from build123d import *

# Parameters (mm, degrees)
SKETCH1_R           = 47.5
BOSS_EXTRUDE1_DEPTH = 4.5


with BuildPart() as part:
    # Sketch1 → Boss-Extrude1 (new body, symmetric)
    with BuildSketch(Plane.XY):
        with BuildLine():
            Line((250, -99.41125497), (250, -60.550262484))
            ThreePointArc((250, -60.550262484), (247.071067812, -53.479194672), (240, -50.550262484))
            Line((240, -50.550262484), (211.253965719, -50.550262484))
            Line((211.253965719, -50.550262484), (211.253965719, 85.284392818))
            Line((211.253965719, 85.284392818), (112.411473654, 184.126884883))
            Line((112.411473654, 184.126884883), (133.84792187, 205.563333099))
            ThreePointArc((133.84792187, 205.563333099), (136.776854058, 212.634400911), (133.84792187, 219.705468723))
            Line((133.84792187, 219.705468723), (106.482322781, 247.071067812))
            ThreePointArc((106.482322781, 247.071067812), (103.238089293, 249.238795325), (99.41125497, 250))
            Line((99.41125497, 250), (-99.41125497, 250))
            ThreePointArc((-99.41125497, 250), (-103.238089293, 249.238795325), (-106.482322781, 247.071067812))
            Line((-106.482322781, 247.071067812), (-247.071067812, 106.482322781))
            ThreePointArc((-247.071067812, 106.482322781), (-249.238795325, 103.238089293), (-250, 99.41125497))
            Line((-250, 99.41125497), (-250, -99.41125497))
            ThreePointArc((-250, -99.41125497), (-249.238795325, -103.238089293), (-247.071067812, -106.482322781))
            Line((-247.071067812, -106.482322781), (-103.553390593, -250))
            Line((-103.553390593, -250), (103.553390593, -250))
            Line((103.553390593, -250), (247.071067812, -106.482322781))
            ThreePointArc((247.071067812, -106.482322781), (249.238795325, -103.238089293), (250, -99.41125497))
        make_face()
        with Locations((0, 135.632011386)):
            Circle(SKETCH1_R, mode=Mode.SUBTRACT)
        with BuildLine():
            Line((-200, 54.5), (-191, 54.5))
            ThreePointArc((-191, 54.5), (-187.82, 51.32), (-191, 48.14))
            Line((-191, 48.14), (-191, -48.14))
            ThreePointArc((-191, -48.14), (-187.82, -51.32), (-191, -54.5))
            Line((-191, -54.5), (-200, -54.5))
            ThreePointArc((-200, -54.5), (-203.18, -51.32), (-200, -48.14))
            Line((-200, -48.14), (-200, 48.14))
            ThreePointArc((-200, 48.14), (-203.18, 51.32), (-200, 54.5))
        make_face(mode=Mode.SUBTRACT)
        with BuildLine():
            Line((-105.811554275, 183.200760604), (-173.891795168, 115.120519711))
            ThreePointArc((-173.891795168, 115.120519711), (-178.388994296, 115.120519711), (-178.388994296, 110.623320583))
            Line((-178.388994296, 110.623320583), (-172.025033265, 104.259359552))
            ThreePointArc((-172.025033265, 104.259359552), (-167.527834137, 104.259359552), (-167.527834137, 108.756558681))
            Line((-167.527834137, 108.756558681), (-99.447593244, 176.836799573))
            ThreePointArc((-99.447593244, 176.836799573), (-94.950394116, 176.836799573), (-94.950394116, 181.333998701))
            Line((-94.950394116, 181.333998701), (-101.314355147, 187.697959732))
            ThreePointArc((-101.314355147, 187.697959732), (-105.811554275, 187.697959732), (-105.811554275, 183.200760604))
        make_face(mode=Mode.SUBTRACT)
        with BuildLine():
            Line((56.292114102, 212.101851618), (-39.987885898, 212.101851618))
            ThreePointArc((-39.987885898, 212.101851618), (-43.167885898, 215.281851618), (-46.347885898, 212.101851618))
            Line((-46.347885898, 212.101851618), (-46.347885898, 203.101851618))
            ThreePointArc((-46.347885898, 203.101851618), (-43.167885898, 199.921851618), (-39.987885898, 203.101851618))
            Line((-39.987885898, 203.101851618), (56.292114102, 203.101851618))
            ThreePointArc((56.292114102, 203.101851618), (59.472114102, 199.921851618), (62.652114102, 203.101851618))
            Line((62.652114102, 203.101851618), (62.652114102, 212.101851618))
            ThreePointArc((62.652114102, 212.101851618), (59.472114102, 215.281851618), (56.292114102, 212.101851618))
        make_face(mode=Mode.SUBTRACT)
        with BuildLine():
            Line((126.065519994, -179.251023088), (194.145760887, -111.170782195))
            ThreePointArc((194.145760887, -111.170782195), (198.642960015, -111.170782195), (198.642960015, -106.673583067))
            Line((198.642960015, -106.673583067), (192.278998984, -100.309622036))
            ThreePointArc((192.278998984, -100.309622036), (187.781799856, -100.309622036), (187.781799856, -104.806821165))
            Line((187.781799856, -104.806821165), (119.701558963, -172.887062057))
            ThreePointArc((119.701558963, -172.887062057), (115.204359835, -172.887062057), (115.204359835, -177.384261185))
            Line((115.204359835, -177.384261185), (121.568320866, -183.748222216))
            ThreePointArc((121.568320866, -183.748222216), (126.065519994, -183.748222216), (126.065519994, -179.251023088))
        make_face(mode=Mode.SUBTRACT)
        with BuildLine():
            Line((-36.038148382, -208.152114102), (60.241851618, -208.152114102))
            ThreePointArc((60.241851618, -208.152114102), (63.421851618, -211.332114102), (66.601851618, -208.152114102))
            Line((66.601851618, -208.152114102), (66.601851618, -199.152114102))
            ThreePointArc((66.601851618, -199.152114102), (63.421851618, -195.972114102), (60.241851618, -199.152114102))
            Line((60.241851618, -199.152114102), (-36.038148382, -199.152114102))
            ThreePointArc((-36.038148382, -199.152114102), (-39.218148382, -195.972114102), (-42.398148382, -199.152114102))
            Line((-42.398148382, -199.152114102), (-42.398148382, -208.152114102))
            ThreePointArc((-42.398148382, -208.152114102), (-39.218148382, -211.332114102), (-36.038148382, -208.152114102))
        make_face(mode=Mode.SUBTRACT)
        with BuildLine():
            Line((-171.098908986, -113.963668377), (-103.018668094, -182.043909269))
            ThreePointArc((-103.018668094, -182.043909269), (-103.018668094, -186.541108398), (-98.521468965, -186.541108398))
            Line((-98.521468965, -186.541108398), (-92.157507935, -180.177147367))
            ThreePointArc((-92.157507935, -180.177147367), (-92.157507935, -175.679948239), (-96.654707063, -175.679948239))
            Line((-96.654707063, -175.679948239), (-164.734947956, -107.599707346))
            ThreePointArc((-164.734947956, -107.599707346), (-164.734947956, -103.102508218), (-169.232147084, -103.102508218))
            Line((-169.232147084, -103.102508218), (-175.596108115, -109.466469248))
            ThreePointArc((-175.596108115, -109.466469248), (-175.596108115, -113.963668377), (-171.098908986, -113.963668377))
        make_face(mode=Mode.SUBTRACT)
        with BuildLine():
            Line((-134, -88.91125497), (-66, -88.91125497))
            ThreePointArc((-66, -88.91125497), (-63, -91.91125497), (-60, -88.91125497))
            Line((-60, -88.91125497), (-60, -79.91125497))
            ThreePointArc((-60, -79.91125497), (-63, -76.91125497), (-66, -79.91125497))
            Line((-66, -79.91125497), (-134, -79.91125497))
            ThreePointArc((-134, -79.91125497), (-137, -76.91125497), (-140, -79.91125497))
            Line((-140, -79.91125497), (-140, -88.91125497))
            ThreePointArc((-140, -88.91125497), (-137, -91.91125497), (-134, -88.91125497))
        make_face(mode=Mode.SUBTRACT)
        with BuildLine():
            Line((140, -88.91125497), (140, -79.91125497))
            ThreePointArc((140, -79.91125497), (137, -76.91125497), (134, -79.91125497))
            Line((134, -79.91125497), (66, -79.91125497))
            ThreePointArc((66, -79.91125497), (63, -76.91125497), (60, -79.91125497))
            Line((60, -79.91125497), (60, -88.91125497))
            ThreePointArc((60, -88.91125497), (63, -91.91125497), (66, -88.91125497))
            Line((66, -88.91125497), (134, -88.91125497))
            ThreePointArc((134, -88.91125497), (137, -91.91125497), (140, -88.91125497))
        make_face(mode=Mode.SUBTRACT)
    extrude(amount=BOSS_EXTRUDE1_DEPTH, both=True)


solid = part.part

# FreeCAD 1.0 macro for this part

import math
import FreeCAD as App
import Part
import Sketcher

V = App.Vector
Q = App.Units.Quantity

doc = App.newDocument("Part")
params = doc.addObject("Spreadsheet::Sheet", "Params")
for row, (alias, value) in enumerate([
    ("sketch1_diameter", "95 mm"),
    ("sketch1_radius", "10 mm"),
    ("sketch1_radius2", "3 mm"),
    ("sketch1_width", "9 mm"),
    ("sketch1_width2", "68 mm"),
    ("pad1_length", "9 mm"),
], start=1):
    params.set(f"A{row}", alias)
    params.set(f"B{row}", "=" + value)
    params.setAlias(f"B{row}", alias)

body = doc.addObject("PartDesign::Body", "Body")

# Sketch on XY plane
sketch1 = body.newObject("Sketcher::SketchObject", "Sketch")
sketch1.AttachmentSupport = (doc.getObject("XY_Plane"), [""])
sketch1.MapMode = "FlatFace"
sketch1.addGeometry(Part.LineSegment(V(250, -99.411255, 0), V(250, -60.550262, 0)), False)
sketch1.addGeometry(Part.ArcOfCircle(Part.Circle(V(240, -60.550262, 0), V(0, 0, 1), 10), math.radians(0), math.radians(90)), False)
sketch1.addGeometry(Part.LineSegment(V(240, -50.550262, 0), V(211.253966, -50.550262, 0)), False)
sketch1.addGeometry(Part.LineSegment(V(211.253966, -50.550262, 0), V(211.253966, 85.284393, 0)), False)
sketch1.addGeometry(Part.LineSegment(V(211.253966, 85.284393, 0), V(112.411474, 184.126885, 0)), False)
sketch1.addGeometry(Part.LineSegment(V(112.411474, 184.126885, 0), V(133.847922, 205.563333, 0)), False)
sketch1.addGeometry(Part.ArcOfCircle(Part.Circle(V(126.776854, 212.634401, 0), V(0, 0, 1), 10), math.radians(-45), math.radians(45)), False)
sketch1.addGeometry(Part.LineSegment(V(133.847922, 219.705469, 0), V(106.482323, 247.071068, 0)), False)
sketch1.addGeometry(Part.ArcOfCircle(Part.Circle(V(99.411255, 240, 0), V(0, 0, 1), 10), math.radians(45), math.radians(90)), False)
sketch1.addGeometry(Part.LineSegment(V(99.411255, 250, 0), V(-99.411255, 250, 0)), False)
sketch1.addGeometry(Part.ArcOfCircle(Part.Circle(V(-99.411255, 240, 0), V(0, 0, 1), 10), math.radians(90), math.radians(135)), False)
sketch1.addGeometry(Part.LineSegment(V(-106.482323, 247.071068, 0), V(-247.071068, 106.482323, 0)), False)
sketch1.addGeometry(Part.ArcOfCircle(Part.Circle(V(-240, 99.411255, 0), V(0, 0, 1), 10), math.radians(135), math.radians(180)), False)
sketch1.addGeometry(Part.LineSegment(V(-250, 99.411255, 0), V(-250, -99.411255, 0)), False)
sketch1.addGeometry(Part.ArcOfCircle(Part.Circle(V(-240, -99.411255, 0), V(0, 0, 1), 10), math.radians(-180), math.radians(-135)), False)
sketch1.addGeometry(Part.LineSegment(V(-247.071068, -106.482323, 0), V(-103.553391, -250, 0)), False)
sketch1.addGeometry(Part.LineSegment(V(-103.553391, -250, 0), V(103.553391, -250, 0)), False)
sketch1.addGeometry(Part.LineSegment(V(103.553391, -250, 0), V(247.071068, -106.482323, 0)), False)
sketch1.addGeometry(Part.ArcOfCircle(Part.Circle(V(240, -99.411255, 0), V(0, 0, 1), 10), math.radians(-45), math.radians(0)), False)
sketch1.addGeometry(Part.LineSegment(V(-103.018668, -182.043909, 0), V(-171.098909, -113.963668, 0)), False)
sketch1.addGeometry(Part.ArcOfCircle(Part.Circle(V(-173.347509, -111.715069, 0), V(0, 0, 1), 3.18), math.radians(135), math.radians(315)), False)
sketch1.addGeometry(Part.LineSegment(V(-175.596108, -109.466469, 0), V(-169.232147, -103.102508, 0)), False)
sketch1.addGeometry(Part.ArcOfCircle(Part.Circle(V(-166.983548, -105.351108, 0), V(0, 0, 1), 3.18), math.radians(-45), math.radians(135)), False)
sketch1.addGeometry(Part.LineSegment(V(-164.734948, -107.599707, 0), V(-96.654707, -175.679948, 0)), False)
sketch1.addGeometry(Part.ArcOfCircle(Part.Circle(V(-94.406107, -177.928548, 0), V(0, 0, 1), 3.18), math.radians(-45), math.radians(135)), False)
sketch1.addGeometry(Part.LineSegment(V(-92.157508, -180.177147, 0), V(-98.521469, -186.541108, 0)), False)
sketch1.addGeometry(Part.ArcOfCircle(Part.Circle(V(-100.770069, -184.292509, 0), V(0, 0, 1), 3.18), math.radians(135), math.radians(315)), False)
sketch1.addGeometry(Part.ArcOfCircle(Part.Circle(V(-200, 51.32, 0), V(0, 0, 1), 3.18), math.radians(90), math.radians(270)), False)
sketch1.addGeometry(Part.LineSegment(V(-200, 54.5, 0), V(-191, 54.5, 0)), False)
sketch1.addGeometry(Part.ArcOfCircle(Part.Circle(V(-191, 51.32, 0), V(0, 0, 1), 3.18), math.radians(-90), math.radians(90)), False)
sketch1.addGeometry(Part.LineSegment(V(-191, 48.14, 0), V(-191, -48.14, 0)), False)
sketch1.addGeometry(Part.ArcOfCircle(Part.Circle(V(-191, -51.32, 0), V(0, 0, 1), 3.18), math.radians(-90), math.radians(90)), False)
sketch1.addGeometry(Part.LineSegment(V(-191, -54.5, 0), V(-200, -54.5, 0)), False)
sketch1.addGeometry(Part.ArcOfCircle(Part.Circle(V(-200, -51.32, 0), V(0, 0, 1), 3.18), math.radians(90), math.radians(270)), False)
sketch1.addGeometry(Part.LineSegment(V(-200, -48.14, 0), V(-200, 48.14, 0)), False)
sketch1.addGeometry(Part.LineSegment(V(-66, -88.911255, 0), V(-134, -88.911255, 0)), False)
sketch1.addGeometry(Part.ArcOfCircle(Part.Circle(V(-137, -88.911255, 0), V(0, 0, 1), 3), math.radians(180), math.radians(360)), False)
sketch1.addGeometry(Part.LineSegment(V(-140, -88.911255, 0), V(-140, -79.911255, 0)), False)
sketch1.addGeometry(Part.ArcOfCircle(Part.Circle(V(-137, -79.911255, 0), V(0, 0, 1), 3), math.radians(0), math.radians(180)), False)
sketch1.addGeometry(Part.LineSegment(V(-134, -79.911255, 0), V(-66, -79.911255, 0)), False)
sketch1.addGeometry(Part.ArcOfCircle(Part.Circle(V(-63, -79.911255, 0), V(0, 0, 1), 3), math.radians(0), math.radians(180)), False)
sketch1.addGeometry(Part.LineSegment(V(-60, -79.911255, 0), V(-60, -88.911255, 0)), False)
sketch1.addGeometry(Part.ArcOfCircle(Part.Circle(V(-63, -88.911255, 0), V(0, 0, 1), 3), math.radians(180), math.radians(360)), False)
sketch1.addGeometry(Part.LineSegment(V(60.241852, -208.152114, 0), V(-36.038148, -208.152114, 0)), False)
sketch1.addGeometry(Part.ArcOfCircle(Part.Circle(V(-39.218148, -208.152114, 0), V(0, 0, 1), 3.18), math.radians(180), math.radians(360)), False)
sketch1.addGeometry(Part.LineSegment(V(-42.398148, -208.152114, 0), V(-42.398148, -199.152114, 0)), False)
sketch1.addGeometry(Part.ArcOfCircle(Part.Circle(V(-39.218148, -199.152114, 0), V(0, 0, 1), 3.18), math.radians(0), math.radians(180)), False)
sketch1.addGeometry(Part.LineSegment(V(-36.038148, -199.152114, 0), V(60.241852, -199.152114, 0)), False)
sketch1.addGeometry(Part.ArcOfCircle(Part.Circle(V(63.421852, -199.152114, 0), V(0, 0, 1), 3.18), math.radians(0), math.radians(180)), False)
sketch1.addGeometry(Part.LineSegment(V(66.601852, -199.152114, 0), V(66.601852, -208.152114, 0)), False)
sketch1.addGeometry(Part.ArcOfCircle(Part.Circle(V(63.421852, -208.152114, 0), V(0, 0, 1), 3.18), math.radians(180), math.radians(360)), False)
sketch1.addGeometry(Part.LineSegment(V(194.145761, -111.170782, 0), V(126.06552, -179.251023, 0)), False)
sketch1.addGeometry(Part.ArcOfCircle(Part.Circle(V(123.81692, -181.499623, 0), V(0, 0, 1), 3.18), math.radians(-135), math.radians(45)), False)
sketch1.addGeometry(Part.LineSegment(V(121.568321, -183.748222, 0), V(115.20436, -177.384261, 0)), False)
sketch1.addGeometry(Part.ArcOfCircle(Part.Circle(V(117.452959, -175.135662, 0), V(0, 0, 1), 3.18), math.radians(45), math.radians(225)), False)
sketch1.addGeometry(Part.LineSegment(V(119.701559, -172.887062, 0), V(187.7818, -104.806821, 0)), False)
sketch1.addGeometry(Part.ArcOfCircle(Part.Circle(V(190.030399, -102.558222, 0), V(0, 0, 1), 3.18), math.radians(45), math.radians(225)), False)
sketch1.addGeometry(Part.LineSegment(V(192.278999, -100.309622, 0), V(198.64296, -106.673583, 0)), False)
sketch1.addGeometry(Part.ArcOfCircle(Part.Circle(V(196.39436, -108.922183, 0), V(0, 0, 1), 3.18), math.radians(-135), math.radians(45)), False)
sketch1.addGeometry(Part.LineSegment(V(140, -79.911255, 0), V(140, -88.911255, 0)), False)
sketch1.addGeometry(Part.ArcOfCircle(Part.Circle(V(137, -88.911255, 0), V(0, 0, 1), 3), math.radians(180), math.radians(360)), False)
sketch1.addGeometry(Part.LineSegment(V(134, -88.911255, 0), V(66, -88.911255, 0)), False)
sketch1.addGeometry(Part.ArcOfCircle(Part.Circle(V(63, -88.911255, 0), V(0, 0, 1), 3), math.radians(180), math.radians(360)), False)
sketch1.addGeometry(Part.LineSegment(V(60, -88.911255, 0), V(60, -79.911255, 0)), False)
sketch1.addGeometry(Part.ArcOfCircle(Part.Circle(V(63, -79.911255, 0), V(0, 0, 1), 3), math.radians(0), math.radians(180)), False)
sketch1.addGeometry(Part.LineSegment(V(66, -79.911255, 0), V(134, -79.911255, 0)), False)
sketch1.addGeometry(Part.ArcOfCircle(Part.Circle(V(137, -79.911255, 0), V(0, 0, 1), 3), math.radians(0), math.radians(180)), False)
sketch1.addGeometry(Part.LineSegment(V(-173.891795, 115.12052, 0), V(-105.811554, 183.200761, 0)), False)
sketch1.addGeometry(Part.ArcOfCircle(Part.Circle(V(-103.562955, 185.44936, 0), V(0, 0, 1), 3.18), math.radians(45), math.radians(225)), False)
sketch1.addGeometry(Part.LineSegment(V(-101.314355, 187.69796, 0), V(-94.950394, 181.333999, 0)), False)
sketch1.addGeometry(Part.ArcOfCircle(Part.Circle(V(-97.198994, 179.085399, 0), V(0, 0, 1), 3.18), math.radians(-135), math.radians(45)), False)
sketch1.addGeometry(Part.LineSegment(V(-99.447593, 176.8368, 0), V(-167.527834, 108.756559, 0)), False)
sketch1.addGeometry(Part.ArcOfCircle(Part.Circle(V(-169.776434, 106.507959, 0), V(0, 0, 1), 3.18), math.radians(-135), math.radians(45)), False)
sketch1.addGeometry(Part.LineSegment(V(-172.025033, 104.25936, 0), V(-178.388994, 110.623321, 0)), False)
sketch1.addGeometry(Part.ArcOfCircle(Part.Circle(V(-176.140395, 112.87192, 0), V(0, 0, 1), 3.18), math.radians(45), math.radians(225)), False)
sketch1.addGeometry(Part.Circle(V(0, 135.632011, 0), V(0, 0, 1), 47.5), False)
sketch1.addGeometry(Part.LineSegment(V(-39.987886, 212.101852, 0), V(56.292114, 212.101852, 0)), False)
sketch1.addGeometry(Part.ArcOfCircle(Part.Circle(V(59.472114, 212.101852, 0), V(0, 0, 1), 3.18), math.radians(0), math.radians(180)), False)
sketch1.addGeometry(Part.LineSegment(V(62.652114, 212.101852, 0), V(62.652114, 203.101852, 0)), False)
sketch1.addGeometry(Part.ArcOfCircle(Part.Circle(V(59.472114, 203.101852, 0), V(0, 0, 1), 3.18), math.radians(180), math.radians(360)), False)
sketch1.addGeometry(Part.LineSegment(V(56.292114, 203.101852, 0), V(-39.987886, 203.101852, 0)), False)
sketch1.addGeometry(Part.ArcOfCircle(Part.Circle(V(-43.167886, 203.101852, 0), V(0, 0, 1), 3.18), math.radians(180), math.radians(360)), False)
sketch1.addGeometry(Part.LineSegment(V(-46.347886, 203.101852, 0), V(-46.347886, 212.101852, 0)), False)
sketch1.addGeometry(Part.ArcOfCircle(Part.Circle(V(-43.167886, 212.101852, 0), V(0, 0, 1), 3.18), math.radians(0), math.radians(180)), False)
sketch1.addConstraint(Sketcher.Constraint("Tangent", 0, 2, 1, 1))
sketch1.addConstraint(Sketcher.Constraint("Tangent", 1, 2, 2, 1))
sketch1.addConstraint(Sketcher.Constraint("Coincident", 2, 2, 3, 1))
sketch1.addConstraint(Sketcher.Constraint("Coincident", 3, 2, 4, 1))
sketch1.addConstraint(Sketcher.Constraint("Coincident", 4, 2, 5, 1))
sketch1.addConstraint(Sketcher.Constraint("Tangent", 5, 2, 6, 1))
sketch1.addConstraint(Sketcher.Constraint("Tangent", 6, 2, 7, 1))
sketch1.addConstraint(Sketcher.Constraint("Tangent", 7, 2, 8, 1))
sketch1.addConstraint(Sketcher.Constraint("Tangent", 8, 2, 9, 1))
sketch1.addConstraint(Sketcher.Constraint("Tangent", 9, 2, 10, 1))
sketch1.addConstraint(Sketcher.Constraint("Tangent", 10, 2, 11, 1))
sketch1.addConstraint(Sketcher.Constraint("Tangent", 11, 2, 12, 1))
sketch1.addConstraint(Sketcher.Constraint("Tangent", 12, 2, 13, 1))
sketch1.addConstraint(Sketcher.Constraint("Tangent", 13, 2, 14, 1))
sketch1.addConstraint(Sketcher.Constraint("Tangent", 14, 2, 15, 1))
sketch1.addConstraint(Sketcher.Constraint("Coincident", 15, 2, 16, 1))
sketch1.addConstraint(Sketcher.Constraint("Coincident", 16, 2, 17, 1))
sketch1.addConstraint(Sketcher.Constraint("Tangent", 17, 2, 18, 1))
sketch1.addConstraint(Sketcher.Constraint("Tangent", 18, 2, 0, 1))
sketch1.addConstraint(Sketcher.Constraint("Coincident", 19, 2, 20, 2))
sketch1.addConstraint(Sketcher.Constraint("Tangent", 20, 1, 21, 1))
sketch1.addConstraint(Sketcher.Constraint("Tangent", 21, 2, 22, 2))
sketch1.addConstraint(Sketcher.Constraint("Coincident", 22, 1, 23, 1))
sketch1.addConstraint(Sketcher.Constraint("Coincident", 23, 2, 24, 2))
sketch1.addConstraint(Sketcher.Constraint("Tangent", 24, 1, 25, 1))
sketch1.addConstraint(Sketcher.Constraint("Tangent", 25, 2, 26, 2))
sketch1.addConstraint(Sketcher.Constraint("Coincident", 26, 1, 19, 1))
sketch1.addConstraint(Sketcher.Constraint("Tangent", 27, 1, 28, 1))
sketch1.addConstraint(Sketcher.Constraint("Tangent", 28, 2, 29, 2))
sketch1.addConstraint(Sketcher.Constraint("Coincident", 29, 1, 30, 1))
sketch1.addConstraint(Sketcher.Constraint("Coincident", 30, 2, 31, 2))
sketch1.addConstraint(Sketcher.Constraint("Tangent", 31, 1, 32, 1))
sketch1.addConstraint(Sketcher.Constraint("Tangent", 32, 2, 33, 2))
sketch1.addConstraint(Sketcher.Constraint("Coincident", 33, 1, 34, 1))
sketch1.addConstraint(Sketcher.Constraint("Coincident", 34, 2, 27, 2))
sketch1.addConstraint(Sketcher.Constraint("Coincident", 35, 2, 36, 2))
sketch1.addConstraint(Sketcher.Constraint("Tangent", 36, 1, 37, 1))
sketch1.addConstraint(Sketcher.Constraint("Tangent", 37, 2, 38, 2))
sketch1.addConstraint(Sketcher.Constraint("Coincident", 38, 1, 39, 1))
sketch1.addConstraint(Sketcher.Constraint("Coincident", 39, 2, 40, 2))
sketch1.addConstraint(Sketcher.Constraint("Tangent", 40, 1, 41, 1))
sketch1.addConstraint(Sketcher.Constraint("Tangent", 41, 2, 42, 2))
sketch1.addConstraint(Sketcher.Constraint("Coincident", 42, 1, 35, 1))
sketch1.addConstraint(Sketcher.Constraint("Coincident", 43, 2, 44, 2))
sketch1.addConstraint(Sketcher.Constraint("Tangent", 44, 1, 45, 1))
sketch1.addConstraint(Sketcher.Constraint("Tangent", 45, 2, 46, 2))
sketch1.addConstraint(Sketcher.Constraint("Coincident", 46, 1, 47, 1))
sketch1.addConstraint(Sketcher.Constraint("Coincident", 47, 2, 48, 2))
sketch1.addConstraint(Sketcher.Constraint("Tangent", 48, 1, 49, 1))
sketch1.addConstraint(Sketcher.Constraint("Tangent", 49, 2, 50, 2))
sketch1.addConstraint(Sketcher.Constraint("Coincident", 50, 1, 43, 1))
sketch1.addConstraint(Sketcher.Constraint("Coincident", 51, 2, 52, 2))
sketch1.addConstraint(Sketcher.Constraint("Tangent", 52, 1, 53, 1))
sketch1.addConstraint(Sketcher.Constraint("Tangent", 53, 2, 54, 2))
sketch1.addConstraint(Sketcher.Constraint("Coincident", 54, 1, 55, 1))
sketch1.addConstraint(Sketcher.Constraint("Coincident", 55, 2, 56, 2))
sketch1.addConstraint(Sketcher.Constraint("Tangent", 56, 1, 57, 1))
sketch1.addConstraint(Sketcher.Constraint("Tangent", 57, 2, 58, 2))
sketch1.addConstraint(Sketcher.Constraint("Coincident", 58, 1, 51, 1))
sketch1.addConstraint(Sketcher.Constraint("Tangent", 59, 2, 60, 2))
sketch1.addConstraint(Sketcher.Constraint("Coincident", 60, 1, 61, 1))
sketch1.addConstraint(Sketcher.Constraint("Coincident", 61, 2, 62, 2))
sketch1.addConstraint(Sketcher.Constraint("Tangent", 62, 1, 63, 1))
sketch1.addConstraint(Sketcher.Constraint("Tangent", 63, 2, 64, 2))
sketch1.addConstraint(Sketcher.Constraint("Coincident", 64, 1, 65, 1))
sketch1.addConstraint(Sketcher.Constraint("Coincident", 65, 2, 66, 2))
sketch1.addConstraint(Sketcher.Constraint("Tangent", 66, 1, 59, 1))
sketch1.addConstraint(Sketcher.Constraint("Coincident", 67, 2, 68, 2))
sketch1.addConstraint(Sketcher.Constraint("Tangent", 68, 1, 69, 1))
sketch1.addConstraint(Sketcher.Constraint("Tangent", 69, 2, 70, 2))
sketch1.addConstraint(Sketcher.Constraint("Coincident", 70, 1, 71, 1))
sketch1.addConstraint(Sketcher.Constraint("Coincident", 71, 2, 72, 2))
sketch1.addConstraint(Sketcher.Constraint("Tangent", 72, 1, 73, 1))
sketch1.addConstraint(Sketcher.Constraint("Tangent", 73, 2, 74, 2))
sketch1.addConstraint(Sketcher.Constraint("Coincident", 74, 1, 67, 1))
sketch1.addConstraint(Sketcher.Constraint("Coincident", 76, 2, 77, 2))
sketch1.addConstraint(Sketcher.Constraint("Tangent", 77, 1, 78, 1))
sketch1.addConstraint(Sketcher.Constraint("Tangent", 78, 2, 79, 2))
sketch1.addConstraint(Sketcher.Constraint("Coincident", 79, 1, 80, 1))
sketch1.addConstraint(Sketcher.Constraint("Coincident", 80, 2, 81, 2))
sketch1.addConstraint(Sketcher.Constraint("Tangent", 81, 1, 82, 1))
sketch1.addConstraint(Sketcher.Constraint("Tangent", 82, 2, 83, 2))
sketch1.addConstraint(Sketcher.Constraint("Coincident", 83, 1, 76, 1))
sketch1.addConstraint(Sketcher.Constraint("Vertical", 0))
sketch1.addConstraint(Sketcher.Constraint("Horizontal", 2))
sketch1.addConstraint(Sketcher.Constraint("Vertical", 3))
sketch1.addConstraint(Sketcher.Constraint("Horizontal", 9))
sketch1.addConstraint(Sketcher.Constraint("Vertical", 13))
sketch1.addConstraint(Sketcher.Constraint("Horizontal", 16))
sketch1.addConstraint(Sketcher.Constraint("Horizontal", 28))
sketch1.addConstraint(Sketcher.Constraint("Vertical", 30))
sketch1.addConstraint(Sketcher.Constraint("Horizontal", 32))
sketch1.addConstraint(Sketcher.Constraint("Vertical", 34))
sketch1.addConstraint(Sketcher.Constraint("Horizontal", 35))
sketch1.addConstraint(Sketcher.Constraint("Vertical", 37))
sketch1.addConstraint(Sketcher.Constraint("Horizontal", 39))
sketch1.addConstraint(Sketcher.Constraint("Vertical", 41))
sketch1.addConstraint(Sketcher.Constraint("Horizontal", 43))
sketch1.addConstraint(Sketcher.Constraint("Vertical", 45))
sketch1.addConstraint(Sketcher.Constraint("Horizontal", 47))
sketch1.addConstraint(Sketcher.Constraint("Vertical", 49))
sketch1.addConstraint(Sketcher.Constraint("Vertical", 59))
sketch1.addConstraint(Sketcher.Constraint("Horizontal", 61))
sketch1.addConstraint(Sketcher.Constraint("Vertical", 63))
sketch1.addConstraint(Sketcher.Constraint("Horizontal", 65))
sketch1.addConstraint(Sketcher.Constraint("Horizontal", 76))
sketch1.addConstraint(Sketcher.Constraint("Vertical", 78))
sketch1.addConstraint(Sketcher.Constraint("Horizontal", 80))
sketch1.addConstraint(Sketcher.Constraint("Vertical", 82))
sketch1.addConstraint(Sketcher.Constraint("Equal", 1, 6))
sketch1.addConstraint(Sketcher.Constraint("Equal", 6, 8))
sketch1.addConstraint(Sketcher.Constraint("Equal", 8, 10))
sketch1.addConstraint(Sketcher.Constraint("Equal", 10, 12))
sketch1.addConstraint(Sketcher.Constraint("Equal", 12, 14))
sketch1.addConstraint(Sketcher.Constraint("Equal", 14, 18))
sketch1.addConstraint(Sketcher.Constraint("Equal", 20, 22))
sketch1.addConstraint(Sketcher.Constraint("Equal", 22, 24))
sketch1.addConstraint(Sketcher.Constraint("Equal", 24, 26))
sketch1.addConstraint(Sketcher.Constraint("Equal", 26, 27))
sketch1.addConstraint(Sketcher.Constraint("Equal", 27, 29))
sketch1.addConstraint(Sketcher.Constraint("Equal", 29, 31))
sketch1.addConstraint(Sketcher.Constraint("Equal", 31, 33))
sketch1.addConstraint(Sketcher.Constraint("Equal", 36, 38))
sketch1.addConstraint(Sketcher.Constraint("Equal", 38, 40))
sketch1.addConstraint(Sketcher.Constraint("Equal", 40, 42))
sketch1.addConstraint(Sketcher.Constraint("Equal", 33, 44))
sketch1.addConstraint(Sketcher.Constraint("Equal", 44, 46))
sketch1.addConstraint(Sketcher.Constraint("Equal", 46, 48))
sketch1.addConstraint(Sketcher.Constraint("Equal", 48, 50))
sketch1.addConstraint(Sketcher.Constraint("Equal", 50, 52))
sketch1.addConstraint(Sketcher.Constraint("Equal", 52, 54))
sketch1.addConstraint(Sketcher.Constraint("Equal", 54, 56))
sketch1.addConstraint(Sketcher.Constraint("Equal", 56, 58))
sketch1.addConstraint(Sketcher.Constraint("Equal", 42, 60))
sketch1.addConstraint(Sketcher.Constraint("Equal", 60, 62))
sketch1.addConstraint(Sketcher.Constraint("Equal", 62, 64))
sketch1.addConstraint(Sketcher.Constraint("Equal", 64, 66))
sketch1.addConstraint(Sketcher.Constraint("Equal", 58, 68))
sketch1.addConstraint(Sketcher.Constraint("Equal", 68, 70))
sketch1.addConstraint(Sketcher.Constraint("Equal", 70, 72))
sketch1.addConstraint(Sketcher.Constraint("Equal", 72, 74))
sketch1.addConstraint(Sketcher.Constraint("Equal", 74, 77))
sketch1.addConstraint(Sketcher.Constraint("Equal", 77, 79))
sketch1.addConstraint(Sketcher.Constraint("Equal", 79, 81))
sketch1.addConstraint(Sketcher.Constraint("Equal", 81, 83))
sketch1.addConstraint(Sketcher.Constraint("Symmetric", 12, 3, 18, 3, -1, 1))
sketch1.addConstraint(Sketcher.Constraint("Symmetric", 36, 3, 60, 3, -2))
sketch1.addConstraint(Sketcher.Constraint("Symmetric", 42, 3, 62, 3, -2))
sketch1.addConstraint(Sketcher.Constraint("Symmetric", 7, 2, 10, 2, -2))
sketch1.addConstraint(Sketcher.Constraint("Symmetric", 14, 2, 17, 2, -2))
sketch1.addConstraint(Sketcher.Constraint("Symmetric", 29, 3, 31, 3, -1))
sketch1.addConstraint(Sketcher.Constraint("PointOnObject", 75, 3, -2))
sketch1.addConstraint(Sketcher.Constraint("Perpendicular", 4, 5))
sketch1.addConstraint(Sketcher.Constraint("Perpendicular", 5, 7))
sketch1.addConstraint(Sketcher.Constraint("Perpendicular", 7, 11))
sketch1.addConstraint(Sketcher.Constraint("Perpendicular", 11, 15))
sketch1.addConstraint(Sketcher.Constraint("Perpendicular", 17, 19))
sketch1.addConstraint(Sketcher.Constraint("Perpendicular", 19, 21))
sketch1.addConstraint(Sketcher.Constraint("Perpendicular", 21, 23))
sketch1.addConstraint(Sketcher.Constraint("Perpendicular", 23, 25))
sketch1.addConstraint(Sketcher.Constraint("Parallel", 25, 51))
sketch1.addConstraint(Sketcher.Constraint("Perpendicular", 51, 53))
sketch1.addConstraint(Sketcher.Constraint("Perpendicular", 53, 55))
sketch1.addConstraint(Sketcher.Constraint("Perpendicular", 55, 57))
sketch1.addConstraint(Sketcher.Constraint("Perpendicular", 57, 67))
sketch1.addConstraint(Sketcher.Constraint("Perpendicular", 67, 69))
sketch1.addConstraint(Sketcher.Constraint("Perpendicular", 69, 71))
sketch1.addConstraint(Sketcher.Constraint("Perpendicular", 71, 73))
sketch1.addConstraint(Sketcher.Constraint("Horizontal", 38, 3, 40, 3))
sketch1.addConstraint(Sketcher.Constraint("Horizontal", 36, 3, 42, 3))
sketch1.addConstraint(Sketcher.Constraint("Horizontal", 46, 3, 48, 3))
sketch1.addConstraint(Sketcher.Constraint("Horizontal", 44, 3, 50, 3))
sketch1.addConstraint(Sketcher.Constraint("Horizontal", 40, 3, 64, 3))
sketch1.addConstraint(Sketcher.Constraint("Horizontal", 64, 3, 66, 3))
sketch1.addConstraint(Sketcher.Constraint("Horizontal", 79, 3, 81, 3))
sketch1.addConstraint(Sketcher.Constraint("Horizontal", 77, 3, 83, 3))
sketch1.addConstraint(Sketcher.Constraint("Horizontal", 62, 3, 35, 2))
sketch1.addConstraint(Sketcher.Constraint("Horizontal", 37, 2, 38, 1))
sketch1.addConstraint(Sketcher.Constraint("Horizontal", 50, 3, 43, 2))
sketch1.addConstraint(Sketcher.Constraint("Horizontal", 45, 2, 46, 1))
sketch1.addConstraint(Sketcher.Constraint("Horizontal", 59, 2, 60, 1))
sketch1.addConstraint(Sketcher.Constraint("Horizontal", 63, 2, 64, 1))
sketch1.addConstraint(Sketcher.Constraint("Horizontal", 83, 3, 76, 2))
sketch1.addConstraint(Sketcher.Constraint("Horizontal", 78, 2, 79, 1))
sketch1.addConstraint(Sketcher.Constraint("Vertical", 27, 3, 33, 3))
sketch1.addConstraint(Sketcher.Constraint("Vertical", 28, 2, 29, 1))
sketch1.addConstraint(Sketcher.Constraint("Vertical", 32, 2, 33, 1))
sketch1.addConstraint(Sketcher.Constraint("Equal", 47, 76))
sketch1.addConstraint(Sketcher.Constraint("Equal", 9, 13))
sketch1.addConstraint(Sketcher.Constraint("Equal", 80, 30))
sketch1.addConstraint(Sketcher.Constraint("Equal", 32, 37))
sketch1.addConstraint(Sketcher.Constraint("Equal", 41, 45))
sketch1.addConstraint(Sketcher.Constraint("Equal", 63, 78))
sketch1.addConstraint(Sketcher.Constraint("Equal", 21, 25))
sketch1.addConstraint(Sketcher.Constraint("Equal", 23, 51))
sketch1.addConstraint(Sketcher.Constraint("Equal", 25, 53))
sketch1.addConstraint(Sketcher.Constraint("Equal", 53, 57))
sketch1.addConstraint(Sketcher.Constraint("Equal", 55, 67))
sketch1.addConstraint(Sketcher.Constraint("Equal", 57, 69))
sketch1.addConstraint(Sketcher.Constraint("Equal", 69, 73))
sketch1.addConstraint(Sketcher.Constraint("Diameter", 75, Q("95 mm")))
sketch1.addConstraint(Sketcher.Constraint("Radius", 1, Q("10 mm")))
sketch1.addConstraint(Sketcher.Constraint("Radius", 36, Q("3 mm")))
sketch1.addConstraint(Sketcher.Constraint("DistanceX", 28, 1, 28, 2, Q("9 mm")))
sketch1.addConstraint(Sketcher.Constraint("DistanceX", 35, 2, 35, 1, Q("68 mm")))
sketch1.addConstraint(Sketcher.Constraint("Radius", 20, Q("3.18 mm")))
sketch1.addConstraint(Sketcher.Constraint("Distance", 21, Q("9 mm")))
sketch1.addConstraint(Sketcher.Constraint("DistanceX", -1, 1, 1, 3, Q("240 mm")))
sketch1.addConstraint(Sketcher.Constraint("DistanceX", 27, 3, -1, 1, Q("200 mm")))
sketch1.addConstraint(Sketcher.Constraint("DistanceX", 36, 3, -1, 1, Q("137 mm")))
sketch1.addConstraint(Sketcher.Constraint("DistanceY", 15, 2, -1, 1, Q("250 mm")))
sketch1.addConstraint(Sketcher.Constraint("DistanceX", 43, 2, 43, 1, Q("96.28 mm")))
sketch1.addConstraint(Sketcher.Constraint("Distance", 19, Q("96.28 mm")))
sketch1.addConstraint(Sketcher.Constraint("DistanceX", -1, 1, 56, 1, Q("192.278999 mm")))
sketch1.addConstraint(Sketcher.Constraint("DistanceY", -1, 1, 69, 2, Q("181.333999 mm")))
sketch1.addConstraint(Sketcher.Constraint("Distance", 7, Q("38.700801 mm")))
sketch1.addConstraint(Sketcher.Constraint("DistanceX", 9, 2, 9, 1, Q("198.82251 mm")))
sketch1.addConstraint(Sketcher.Constraint("DistanceX", -1, 1, 55, 2, Q("187.7818 mm")))
sketch1.addConstraint(Sketcher.Constraint("DistanceY", -1, 1, 70, 1, Q("176.8368 mm")))
sketch1.addConstraint(Sketcher.Constraint("DistanceX", 2, 2, 2, 1, Q("28.746034 mm")))
sketch1.addConstraint(Sketcher.Constraint("DistanceY", 0, 1, 0, 2, Q("38.860992 mm")))
sketch1.addConstraint(Sketcher.Constraint("DistanceY", 3, 1, 3, 2, Q("135.834655 mm")))
sketch1.addConstraint(Sketcher.Constraint("DistanceX", 20, 3, -1, 1, Q("173.347509 mm")))
sketch1.addConstraint(Sketcher.Constraint("DistanceY", 20, 3, -1, 1, Q("111.715069 mm")))
sketch1.addConstraint(Sketcher.Constraint("DistanceX", 26, 3, -1, 1, Q("100.770069 mm")))
sketch1.addConstraint(Sketcher.Constraint("DistanceX", 44, 3, -1, 1, Q("39.218148 mm")))
sketch1.addConstraint(Sketcher.Constraint("DistanceX", -1, 1, 52, 3, Q("123.81692 mm")))
sketch1.addConstraint(Sketcher.Constraint("DistanceY", 54, 3, -1, 1, Q("175.135662 mm")))
sketch1.addConstraint(Sketcher.Constraint("DistanceY", -1, 1, 72, 3, Q("106.507959 mm")))
sketch1.addConstraint(Sketcher.Constraint("DistanceY", -1, 1, 75, 3, Q("135.632011 mm")))
sketch1.addConstraint(Sketcher.Constraint("DistanceY", -1, 1, 77, 3, Q("212.101852 mm")))
sketch1.addConstraint(Sketcher.Constraint("DistanceX", 19, 2, -1, 1, Q("171.098909 mm")))
sketch1.addConstraint(Sketcher.Constraint("DistanceY", 23, 2, -1, 1, Q("175.679948 mm")))
sketch1.addConstraint(Sketcher.Constraint("DistanceX", -1, 1, 51, 2, Q("126.06552 mm")))
sketch1.addConstraint(Sketcher.Constraint("DistanceY", -1, 1, 67, 2, Q("183.200761 mm")))
sketch1.addConstraint(Sketcher.Constraint("DistanceY", 36, 3, -1, 1, Q("88.911255 mm")))
sketch1.addConstraint(Sketcher.Constraint("DistanceY", 44, 3, -1, 1, Q("208.152114 mm")))
sketch1.addConstraint(Sketcher.Constraint("DistanceX", 68, 3, -1, 1, Q("103.562955 mm")))
sketch1.addConstraint(Sketcher.Constraint("DistanceX", -1, 1, 77, 3, Q("59.472114 mm")))
sketch1.setExpression("Constraints[200]", "Params.sketch1_diameter")
sketch1.setExpression("Constraints[201]", "Params.sketch1_radius")
sketch1.setExpression("Constraints[202]", "Params.sketch1_radius2")
sketch1.setExpression("Constraints[203]", "Params.sketch1_width")
sketch1.setExpression("Constraints[204]", "Params.sketch1_width2")
pad1 = body.newObject("PartDesign::Pad", "Pad")
pad1.Profile = sketch1
pad1.setExpression("Length", "Params.pad1_length")
pad1.Midplane = True

doc.recompute()
